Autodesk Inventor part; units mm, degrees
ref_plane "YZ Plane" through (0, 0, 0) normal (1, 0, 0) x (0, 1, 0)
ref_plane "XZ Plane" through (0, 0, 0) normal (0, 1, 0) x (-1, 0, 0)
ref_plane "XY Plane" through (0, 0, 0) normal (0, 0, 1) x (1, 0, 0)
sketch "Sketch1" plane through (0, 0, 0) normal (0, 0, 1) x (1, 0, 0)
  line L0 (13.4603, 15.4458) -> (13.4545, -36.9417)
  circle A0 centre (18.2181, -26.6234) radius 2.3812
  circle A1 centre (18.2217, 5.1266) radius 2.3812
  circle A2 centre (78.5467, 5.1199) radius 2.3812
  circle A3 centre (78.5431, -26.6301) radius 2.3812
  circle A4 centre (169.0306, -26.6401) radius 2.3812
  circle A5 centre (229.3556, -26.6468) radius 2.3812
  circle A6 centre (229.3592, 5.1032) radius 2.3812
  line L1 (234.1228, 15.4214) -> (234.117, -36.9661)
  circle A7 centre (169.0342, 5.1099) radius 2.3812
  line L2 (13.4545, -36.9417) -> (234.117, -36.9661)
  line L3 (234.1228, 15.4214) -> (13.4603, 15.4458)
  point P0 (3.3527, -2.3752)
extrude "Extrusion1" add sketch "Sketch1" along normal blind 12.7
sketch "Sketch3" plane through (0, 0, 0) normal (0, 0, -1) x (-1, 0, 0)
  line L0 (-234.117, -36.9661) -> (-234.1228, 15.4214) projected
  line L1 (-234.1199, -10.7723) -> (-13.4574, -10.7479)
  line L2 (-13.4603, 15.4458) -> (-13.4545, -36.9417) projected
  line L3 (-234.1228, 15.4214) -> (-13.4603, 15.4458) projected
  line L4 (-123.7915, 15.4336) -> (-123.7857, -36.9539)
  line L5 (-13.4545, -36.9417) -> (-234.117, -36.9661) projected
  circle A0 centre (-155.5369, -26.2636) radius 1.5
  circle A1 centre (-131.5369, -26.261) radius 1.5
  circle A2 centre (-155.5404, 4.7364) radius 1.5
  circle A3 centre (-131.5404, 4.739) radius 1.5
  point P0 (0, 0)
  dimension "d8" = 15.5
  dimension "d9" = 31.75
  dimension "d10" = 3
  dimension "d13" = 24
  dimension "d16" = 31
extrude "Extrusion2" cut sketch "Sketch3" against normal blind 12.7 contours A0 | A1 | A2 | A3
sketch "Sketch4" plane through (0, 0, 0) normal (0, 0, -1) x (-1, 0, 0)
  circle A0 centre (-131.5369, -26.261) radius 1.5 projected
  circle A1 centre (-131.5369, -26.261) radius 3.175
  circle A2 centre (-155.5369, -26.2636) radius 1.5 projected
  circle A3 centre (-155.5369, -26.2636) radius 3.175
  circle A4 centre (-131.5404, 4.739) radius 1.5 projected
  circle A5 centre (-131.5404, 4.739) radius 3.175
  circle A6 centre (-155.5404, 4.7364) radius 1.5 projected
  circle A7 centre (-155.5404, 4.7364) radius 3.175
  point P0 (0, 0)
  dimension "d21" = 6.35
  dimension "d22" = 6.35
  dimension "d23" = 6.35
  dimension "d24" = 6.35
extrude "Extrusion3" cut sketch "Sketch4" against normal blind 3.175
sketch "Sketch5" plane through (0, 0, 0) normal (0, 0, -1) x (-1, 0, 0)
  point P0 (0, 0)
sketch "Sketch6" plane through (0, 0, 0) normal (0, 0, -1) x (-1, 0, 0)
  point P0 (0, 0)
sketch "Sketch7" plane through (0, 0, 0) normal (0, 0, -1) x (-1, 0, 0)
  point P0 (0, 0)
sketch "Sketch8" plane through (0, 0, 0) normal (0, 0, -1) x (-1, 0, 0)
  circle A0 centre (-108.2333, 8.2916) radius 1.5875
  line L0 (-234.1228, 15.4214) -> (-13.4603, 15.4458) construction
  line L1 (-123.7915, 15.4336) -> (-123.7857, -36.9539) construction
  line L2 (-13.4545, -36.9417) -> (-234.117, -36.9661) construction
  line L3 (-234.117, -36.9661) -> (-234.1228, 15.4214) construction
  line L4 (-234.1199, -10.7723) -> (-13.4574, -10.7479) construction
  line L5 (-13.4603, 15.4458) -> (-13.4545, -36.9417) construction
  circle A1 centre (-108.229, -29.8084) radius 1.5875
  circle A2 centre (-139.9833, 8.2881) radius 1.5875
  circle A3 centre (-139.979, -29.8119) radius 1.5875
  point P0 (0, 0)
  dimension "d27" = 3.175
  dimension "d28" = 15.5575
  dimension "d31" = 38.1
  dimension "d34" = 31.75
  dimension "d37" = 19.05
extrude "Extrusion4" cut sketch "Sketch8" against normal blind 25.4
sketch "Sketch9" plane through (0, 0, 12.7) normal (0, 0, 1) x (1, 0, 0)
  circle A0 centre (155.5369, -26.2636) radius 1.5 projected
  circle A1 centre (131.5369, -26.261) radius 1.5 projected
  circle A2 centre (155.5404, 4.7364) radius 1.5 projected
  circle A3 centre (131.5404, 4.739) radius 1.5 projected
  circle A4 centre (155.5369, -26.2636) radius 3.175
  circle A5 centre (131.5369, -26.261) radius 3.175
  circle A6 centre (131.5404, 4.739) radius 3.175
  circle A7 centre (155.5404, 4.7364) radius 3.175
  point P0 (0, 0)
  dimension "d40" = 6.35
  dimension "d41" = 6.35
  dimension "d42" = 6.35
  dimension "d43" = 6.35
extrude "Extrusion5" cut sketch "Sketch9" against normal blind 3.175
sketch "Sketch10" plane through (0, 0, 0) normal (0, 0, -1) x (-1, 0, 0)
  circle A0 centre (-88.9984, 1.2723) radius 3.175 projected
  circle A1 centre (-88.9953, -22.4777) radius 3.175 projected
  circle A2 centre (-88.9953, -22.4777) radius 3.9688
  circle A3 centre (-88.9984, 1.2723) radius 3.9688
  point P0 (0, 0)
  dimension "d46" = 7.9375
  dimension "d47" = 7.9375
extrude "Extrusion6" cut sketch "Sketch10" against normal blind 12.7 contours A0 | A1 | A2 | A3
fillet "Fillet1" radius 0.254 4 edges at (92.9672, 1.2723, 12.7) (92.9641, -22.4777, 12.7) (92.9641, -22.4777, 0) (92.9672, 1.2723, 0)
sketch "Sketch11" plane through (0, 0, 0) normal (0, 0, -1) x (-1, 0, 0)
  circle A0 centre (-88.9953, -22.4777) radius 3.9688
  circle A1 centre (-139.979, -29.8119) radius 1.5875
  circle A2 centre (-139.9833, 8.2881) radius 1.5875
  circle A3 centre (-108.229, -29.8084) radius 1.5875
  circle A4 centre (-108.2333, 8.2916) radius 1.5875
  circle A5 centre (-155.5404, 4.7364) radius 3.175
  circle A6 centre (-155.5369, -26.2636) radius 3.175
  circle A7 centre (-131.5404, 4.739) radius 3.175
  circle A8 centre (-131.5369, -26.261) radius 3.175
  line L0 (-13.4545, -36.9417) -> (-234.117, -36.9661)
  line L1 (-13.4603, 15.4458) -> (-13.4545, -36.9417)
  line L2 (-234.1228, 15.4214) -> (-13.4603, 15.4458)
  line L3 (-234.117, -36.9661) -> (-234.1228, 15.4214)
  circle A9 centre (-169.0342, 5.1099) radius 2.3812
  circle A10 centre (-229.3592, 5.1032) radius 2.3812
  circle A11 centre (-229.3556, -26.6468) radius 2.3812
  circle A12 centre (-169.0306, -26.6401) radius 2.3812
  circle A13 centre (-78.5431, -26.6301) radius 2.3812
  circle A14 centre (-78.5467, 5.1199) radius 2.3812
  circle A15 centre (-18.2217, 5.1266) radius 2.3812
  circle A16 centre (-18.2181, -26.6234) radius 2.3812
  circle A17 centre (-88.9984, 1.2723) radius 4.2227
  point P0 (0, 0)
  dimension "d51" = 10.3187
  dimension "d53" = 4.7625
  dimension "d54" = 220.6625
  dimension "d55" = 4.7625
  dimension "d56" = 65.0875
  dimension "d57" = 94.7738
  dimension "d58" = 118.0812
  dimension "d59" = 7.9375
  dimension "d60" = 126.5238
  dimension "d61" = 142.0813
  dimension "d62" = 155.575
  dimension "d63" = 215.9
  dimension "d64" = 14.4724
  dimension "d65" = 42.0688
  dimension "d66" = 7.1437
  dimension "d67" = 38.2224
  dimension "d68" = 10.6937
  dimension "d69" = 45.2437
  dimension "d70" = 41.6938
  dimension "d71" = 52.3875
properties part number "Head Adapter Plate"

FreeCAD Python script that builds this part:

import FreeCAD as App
import Part
import Sketcher
Q = App.Units.Quantity


def edges_at(feature, points):
    """Names of the edges that pass closest to the given points."""
    edges = feature.Shape.Edges
    near = lambda p: min(range(len(edges)), key=lambda i: edges[i].distToShape(Part.Vertex(*p))[0])
    return sorted({f"Edge{near(p) + 1}" for p in points})

doc = App.newDocument("Part")
params = doc.addObject("Spreadsheet::Sheet", "Params")
for row, (alias, value) in enumerate([
    ("sketch1_diameter", "0.1875 in"),
    ("sketch1_length", "8.6875 in"),
    ("sketch1_length2", "2.0625 in"),
    ("pad1_length", "0.5 in"),
    ("pocket1_length", "0.5 in"),
    ("sketch3_diameter", "0.25 in"),
    ("pocket2_length", "0.125 in"),
    ("sketch4_diameter", "0.125 in"),
    ("pocket3_length", "1 in"),
    ("sketch5_diameter", "0.25 in"),
    ("pocket4_length", "0.125 in"),
    ("sketch6_diameter", "0.3125 in"),
    ("pocket5_length", "0.5 in"),
    ("fillet_radius", "0.01 in"),
], start=1):
    params.set(f"A{row}", alias)
    params.set(f"B{row}", "=" + value)
    params.setAlias(f"B{row}", alias)

body = doc.addObject("PartDesign::Body", "Body")

sketch1 = body.newObject("Sketcher::SketchObject", "Sketch")
sketch1.AttachmentSupport = (doc.getObject("XY_Plane"), [""])
sketch1.MapMode = "FlatFace"
sketch1.addGeometry([
    Part.LineSegment(App.Vector(234.1228, 15.4214, 0), App.Vector(13.4603, 15.4458, 0)),
    Part.LineSegment(App.Vector(13.4603, 15.4458, 0), App.Vector(13.4545, -36.9417, 0)),
    Part.LineSegment(App.Vector(13.4545, -36.9417, 0), App.Vector(234.117, -36.9661, 0)),
    Part.LineSegment(App.Vector(234.117, -36.9661, 0), App.Vector(234.1228, 15.4214, 0)),
    Part.Circle(App.Vector(18.2181, -26.6234, 0), App.Vector(0, 0, 1), 2.3812),
    Part.Circle(App.Vector(78.5431, -26.6301, 0), App.Vector(0, 0, 1), 2.3812),
    Part.Circle(App.Vector(169.0306, -26.6401, 0), App.Vector(0, 0, 1), 2.3812),
    Part.Circle(App.Vector(229.3556, -26.6468, 0), App.Vector(0, 0, 1), 2.3812),
    Part.Circle(App.Vector(18.2217, 5.1266, 0), App.Vector(0, 0, 1), 2.3812),
    Part.Circle(App.Vector(78.5467, 5.1199, 0), App.Vector(0, 0, 1), 2.3812),
    Part.Circle(App.Vector(169.0342, 5.1099, 0), App.Vector(0, 0, 1), 2.3812),
    Part.Circle(App.Vector(229.3592, 5.1032, 0), App.Vector(0, 0, 1), 2.3812),
], False)
sketch1.addConstraint([
    Sketcher.Constraint("Coincident", 0, 2, 1, 1),
    Sketcher.Constraint("Coincident", 1, 2, 2, 1),
    Sketcher.Constraint("Coincident", 2, 2, 3, 1),
    Sketcher.Constraint("Coincident", 3, 2, 0, 1),
    Sketcher.Constraint("Equal", 4, 5),
    Sketcher.Constraint("Equal", 5, 6),
    Sketcher.Constraint("Equal", 6, 7),
    Sketcher.Constraint("Equal", 7, 8),
    Sketcher.Constraint("Equal", 8, 9),
    Sketcher.Constraint("Equal", 9, 10),
    Sketcher.Constraint("Equal", 10, 11),
    Sketcher.Constraint("Perpendicular", 0, 1),
    Sketcher.Constraint("Perpendicular", 1, 2),
    Sketcher.Constraint("Perpendicular", 2, 3),
    Sketcher.Constraint("Diameter", 4, Q("0.1875 in")),
    Sketcher.Constraint("DistanceY", 4, 3, 8, 3, Q("1.25 in")),
    Sketcher.Constraint("DistanceY", 5, 3, 9, 3, Q("1.25 in")),
    Sketcher.Constraint("DistanceY", 6, 3, 10, 3, Q("1.25 in")),
    Sketcher.Constraint("DistanceY", 7, 3, 11, 3, Q("1.25 in")),
    Sketcher.Constraint("Distance", 0, Q("8.6875 in")),
    Sketcher.Constraint("Distance", 1, Q("2.0625 in")),
    Sketcher.Constraint("DistanceX", 4, 3, 5, 3, Q("2.375 in")),
    Sketcher.Constraint("DistanceX", 5, 3, 6, 3, Q("3.5625 in")),
    Sketcher.Constraint("DistanceX", 6, 3, 7, 3, Q("2.375 in")),
    Sketcher.Constraint("DistanceX", 8, 3, 9, 3, Q("2.375 in")),
    Sketcher.Constraint("DistanceX", 9, 3, 10, 3, Q("3.5625 in")),
    Sketcher.Constraint("DistanceX", 10, 3, 11, 3, Q("2.375 in")),
    Sketcher.Constraint("DistanceX", -1, 1, 8, 3, Q("0.7174 in")),
    Sketcher.Constraint("DistanceY", -1, 1, 0, 2, Q("0.6081 in")),
    Sketcher.Constraint("DistanceX", -1, 1, 1, 2, Q("0.5297 in")),
    Sketcher.Constraint("DistanceY", 6, 3, 5, 3, Q("0.0004 in")),
    Sketcher.Constraint("DistanceX", -1, 1, 4, 3, 18.218),
    Sketcher.Constraint("DistanceY", 4, 3, -1, 1, 26.6234),
    Sketcher.Constraint("DistanceY", 5, 3, -1, 1, 26.63),
    Sketcher.Constraint("DistanceY", 7, 3, -1, 1, 26.6468),
    Sketcher.Constraint("DistanceX", -1, 1, 0, 2, 13.4603),
])
sketch1.setExpression("Constraints[14]", "Params.sketch1_diameter")
sketch1.setExpression("Constraints[19]", "Params.sketch1_length")
sketch1.setExpression("Constraints[20]", "Params.sketch1_length2")
pad1 = body.newObject("PartDesign::Pad", "Pad")
pad1.Profile = sketch1
pad1.setExpression("Length", "Params.pad1_length")

sketch2 = body.newObject("Sketcher::SketchObject", "Sketch001")
sketch2.AttachmentSupport = (doc.getObject("XY_Plane"), [""])
sketch2.MapMode = "FlatFace"
sketch2.addGeometry([
    Part.Circle(App.Vector(155.5369, -26.2636, 0), App.Vector(0, 0, 1), 1.5),
    Part.Circle(App.Vector(131.5369, -26.261, 0), App.Vector(0, 0, 1), 1.5),
    Part.Circle(App.Vector(155.5404, 4.7364, 0), App.Vector(0, 0, 1), 1.5),
    Part.Circle(App.Vector(131.5404, 4.739, 0), App.Vector(0, 0, 1), 1.5),
], False)
sketch2.addConstraint([
    Sketcher.Constraint("Equal", 0, 1),
    Sketcher.Constraint("Equal", 1, 2),
    Sketcher.Constraint("Equal", 2, 3),
    Sketcher.Constraint("Diameter", 0, Q("0.1181 in")),
    Sketcher.Constraint("DistanceX", 1, 3, 0, 3, 24.0),
    Sketcher.Constraint("DistanceY", 0, 3, 2, 3, 31.0),
    Sketcher.Constraint("DistanceX", 3, 3, 2, 3, 24.0),
    Sketcher.Constraint("DistanceY", 1, 3, 3, 3, 31.0),
    Sketcher.Constraint("DistanceY", 0, 3, -1, 1, Q("1.034 in")),
    Sketcher.Constraint("DistanceX", -1, 1, 0, 3, Q("6.1235 in")),
    Sketcher.Constraint("DistanceY", 1, 3, -1, 1, Q("1.0339 in")),
    Sketcher.Constraint("DistanceX", -1, 1, 2, 3, 155.5404),
])
pocket1 = body.newObject("PartDesign::Pocket", "Pocket")
pocket1.Profile = sketch2
pocket1.setExpression("Length", "Params.pocket1_length")
pocket1.Reversed = True

sketch3 = body.newObject("Sketcher::SketchObject", "Sketch002")
sketch3.AttachmentSupport = (doc.getObject("XY_Plane"), [""])
sketch3.MapMode = "FlatFace"
sketch3.addGeometry([
    Part.Circle(App.Vector(131.5369, -26.261, 0), App.Vector(0, 0, 1), 3.175),
    Part.Circle(App.Vector(131.5369, -26.261, 0), App.Vector(0, 0, 1), 1.5),
    Part.Circle(App.Vector(155.5369, -26.2636, 0), App.Vector(0, 0, 1), 3.175),
    Part.Circle(App.Vector(155.5369, -26.2636, 0), App.Vector(0, 0, 1), 1.5),
    Part.Circle(App.Vector(131.5404, 4.739, 0), App.Vector(0, 0, 1), 3.175),
    Part.Circle(App.Vector(131.5404, 4.739, 0), App.Vector(0, 0, 1), 1.5),
    Part.Circle(App.Vector(155.5404, 4.7364, 0), App.Vector(0, 0, 1), 3.175),
    Part.Circle(App.Vector(155.5404, 4.7364, 0), App.Vector(0, 0, 1), 1.5),
], False)
sketch3.addConstraint([
    Sketcher.Constraint("Coincident", 1, 3, 0, 3),
    Sketcher.Constraint("Coincident", 3, 3, 2, 3),
    Sketcher.Constraint("Coincident", 5, 3, 4, 3),
    Sketcher.Constraint("Coincident", 7, 3, 6, 3),
    Sketcher.Constraint("Equal", 0, 2),
    Sketcher.Constraint("Equal", 1, 3),
    Sketcher.Constraint("Equal", 2, 4),
    Sketcher.Constraint("Equal", 3, 5),
    Sketcher.Constraint("Equal", 4, 6),
    Sketcher.Constraint("Equal", 5, 7),
    Sketcher.Constraint("Diameter", 0, Q("0.25 in")),
    Sketcher.Constraint("Diameter", 1, Q("0.1181 in")),
    Sketcher.Constraint("DistanceY", 2, 3, -1, 1, Q("1.034 in")),
    Sketcher.Constraint("DistanceY", 0, 3, -1, 1, Q("1.0339 in")),
    Sketcher.Constraint("DistanceX", -1, 1, 2, 3, Q("6.1235 in")),
    Sketcher.Constraint("DistanceY", 6, 3, 4, 3, Q("0.0001 in")),
    Sketcher.Constraint("DistanceX", -1, 1, 0, 3, 131.537),
    Sketcher.Constraint("DistanceX", -1, 1, 4, 3, 131.5404),
    Sketcher.Constraint("DistanceY", -1, 1, 4, 3, 4.739),
    Sketcher.Constraint("DistanceX", -1, 1, 6, 3, 155.5404),
])
sketch3.setExpression("Constraints[10]", "Params.sketch3_diameter")
pocket2 = body.newObject("PartDesign::Pocket", "Pocket001")
pocket2.Profile = sketch3
pocket2.setExpression("Length", "Params.pocket2_length")
pocket2.Reversed = True

sketch4 = body.newObject("Sketcher::SketchObject", "Sketch003")
sketch4.AttachmentSupport = (doc.getObject("XY_Plane"), [""])
sketch4.MapMode = "FlatFace"
sketch4.addGeometry([
    Part.Circle(App.Vector(108.2333, 8.2916, 0), App.Vector(0, 0, 1), 1.5875),
    Part.Circle(App.Vector(108.229, -29.8084, 0), App.Vector(0, 0, 1), 1.5875),
    Part.Circle(App.Vector(139.9833, 8.2881, 0), App.Vector(0, 0, 1), 1.5875),
    Part.Circle(App.Vector(139.979, -29.8119, 0), App.Vector(0, 0, 1), 1.5875),
], False)
sketch4.addConstraint([
    Sketcher.Constraint("Equal", 0, 1),
    Sketcher.Constraint("Equal", 1, 2),
    Sketcher.Constraint("Equal", 2, 3),
    Sketcher.Constraint("Diameter", 0, Q("0.125 in")),
    Sketcher.Constraint("DistanceY", 1, 3, 0, 3, Q("1.5 in")),
    Sketcher.Constraint("DistanceY", 3, 3, 2, 3, Q("1.5 in")),
    Sketcher.Constraint("DistanceX", 0, 3, 2, 3, Q("1.25 in")),
    Sketcher.Constraint("DistanceX", 1, 3, 3, 3, Q("1.25 in")),
    Sketcher.Constraint("DistanceY", -1, 1, 2, 3, Q("0.3263 in")),
    Sketcher.Constraint("DistanceX", -1, 1, 0, 3, 108.2333),
    Sketcher.Constraint("DistanceY", -1, 1, 0, 3, 8.2916),
    Sketcher.Constraint("DistanceX", -1, 1, 1, 3, 108.229),
])
sketch4.setExpression("Constraints[3]", "Params.sketch4_diameter")
pocket3 = body.newObject("PartDesign::Pocket", "Pocket002")
pocket3.Profile = sketch4
pocket3.setExpression("Length", "Params.pocket3_length")
pocket3.Reversed = True

sketch5 = body.newObject("Sketcher::SketchObject", "Sketch004")
sketch5.AttachmentSupport = (doc.getObject("XY_Plane"), [""])
sketch5.MapMode = "FlatFace"
sketch5.AttachmentOffset = App.Placement(App.Vector(0, 0, 0.5 * 25.4), App.Rotation())
sketch5.addGeometry([
    Part.Circle(App.Vector(155.5369, -26.2636, 0), App.Vector(0, 0, 1), 3.175),
    Part.Circle(App.Vector(155.5369, -26.2636, 0), App.Vector(0, 0, 1), 1.5),
    Part.Circle(App.Vector(131.5369, -26.261, 0), App.Vector(0, 0, 1), 3.175),
    Part.Circle(App.Vector(131.5369, -26.261, 0), App.Vector(0, 0, 1), 1.5),
    Part.Circle(App.Vector(131.5404, 4.739, 0), App.Vector(0, 0, 1), 3.175),
    Part.Circle(App.Vector(131.5404, 4.739, 0), App.Vector(0, 0, 1), 1.5),
    Part.Circle(App.Vector(155.5404, 4.7364, 0), App.Vector(0, 0, 1), 3.175),
    Part.Circle(App.Vector(155.5404, 4.7364, 0), App.Vector(0, 0, 1), 1.5),
], False)
sketch5.addConstraint([
    Sketcher.Constraint("Coincident", 1, 3, 0, 3),
    Sketcher.Constraint("Coincident", 3, 3, 2, 3),
    Sketcher.Constraint("Coincident", 5, 3, 4, 3),
    Sketcher.Constraint("Coincident", 7, 3, 6, 3),
    Sketcher.Constraint("Equal", 0, 2),
    Sketcher.Constraint("Equal", 1, 3),
    Sketcher.Constraint("Equal", 2, 4),
    Sketcher.Constraint("Equal", 3, 5),
    Sketcher.Constraint("Equal", 4, 6),
    Sketcher.Constraint("Equal", 5, 7),
    Sketcher.Constraint("Diameter", 0, Q("0.25 in")),
    Sketcher.Constraint("Diameter", 1, Q("0.1181 in")),
    Sketcher.Constraint("DistanceY", 0, 3, -1, 1, Q("1.034 in")),
    Sketcher.Constraint("DistanceX", -1, 1, 0, 3, Q("6.1235 in")),
    Sketcher.Constraint("DistanceY", 2, 3, -1, 1, Q("1.0339 in")),
    Sketcher.Constraint("DistanceY", 6, 3, 4, 3, Q("0.0001 in")),
    Sketcher.Constraint("DistanceX", -1, 1, 2, 3, 131.537),
    Sketcher.Constraint("DistanceX", -1, 1, 4, 3, 131.5404),
    Sketcher.Constraint("DistanceY", -1, 1, 4, 3, 4.739),
    Sketcher.Constraint("DistanceX", -1, 1, 6, 3, 155.5404),
])
sketch5.setExpression("Constraints[10]", "Params.sketch5_diameter")
pocket4 = body.newObject("PartDesign::Pocket", "Pocket003")
pocket4.Profile = sketch5
pocket4.setExpression("Length", "Params.pocket4_length")

sketch6 = body.newObject("Sketcher::SketchObject", "Sketch005")
sketch6.AttachmentSupport = (doc.getObject("XY_Plane"), [""])
sketch6.MapMode = "FlatFace"
sketch6.addGeometry([
    Part.Circle(App.Vector(88.9984, 1.2723, 0), App.Vector(0, 0, 1), 3.9688),
    Part.Circle(App.Vector(88.9953, -22.4777, 0), App.Vector(0, 0, 1), 3.9688),
], False)
sketch6.addConstraint([
    Sketcher.Constraint("Equal", 0, 1),
    Sketcher.Constraint("Diameter", 0, Q("0.3125 in")),
    Sketcher.Constraint("DistanceY", -1, 1, 0, 3, Q("0.0501 in")),
    Sketcher.Constraint("DistanceX", -1, 1, 0, 3, 88.9984),
    Sketcher.Constraint("DistanceX", -1, 1, 1, 3, 88.9953),
    Sketcher.Constraint("DistanceY", 1, 3, -1, 1, 22.4777),
])
sketch6.setExpression("Constraints[1]", "Params.sketch6_diameter")
pocket5 = body.newObject("PartDesign::Pocket", "Pocket004")
pocket5.Profile = sketch6
pocket5.setExpression("Length", "Params.pocket5_length")
pocket5.Reversed = True
doc.recompute()

fillet = body.newObject("PartDesign::Fillet", "Fillet")
fillet.Base = (pocket5, edges_at(pocket5, [
    (92.967, 1.272, 12.7),
    (92.964, -22.478, 12.7),
    (92.964, -22.478, 0),
    (92.967, 1.272, 0),
]))
fillet.setExpression("Radius", "Params.fillet_radius")

doc.recompute()
